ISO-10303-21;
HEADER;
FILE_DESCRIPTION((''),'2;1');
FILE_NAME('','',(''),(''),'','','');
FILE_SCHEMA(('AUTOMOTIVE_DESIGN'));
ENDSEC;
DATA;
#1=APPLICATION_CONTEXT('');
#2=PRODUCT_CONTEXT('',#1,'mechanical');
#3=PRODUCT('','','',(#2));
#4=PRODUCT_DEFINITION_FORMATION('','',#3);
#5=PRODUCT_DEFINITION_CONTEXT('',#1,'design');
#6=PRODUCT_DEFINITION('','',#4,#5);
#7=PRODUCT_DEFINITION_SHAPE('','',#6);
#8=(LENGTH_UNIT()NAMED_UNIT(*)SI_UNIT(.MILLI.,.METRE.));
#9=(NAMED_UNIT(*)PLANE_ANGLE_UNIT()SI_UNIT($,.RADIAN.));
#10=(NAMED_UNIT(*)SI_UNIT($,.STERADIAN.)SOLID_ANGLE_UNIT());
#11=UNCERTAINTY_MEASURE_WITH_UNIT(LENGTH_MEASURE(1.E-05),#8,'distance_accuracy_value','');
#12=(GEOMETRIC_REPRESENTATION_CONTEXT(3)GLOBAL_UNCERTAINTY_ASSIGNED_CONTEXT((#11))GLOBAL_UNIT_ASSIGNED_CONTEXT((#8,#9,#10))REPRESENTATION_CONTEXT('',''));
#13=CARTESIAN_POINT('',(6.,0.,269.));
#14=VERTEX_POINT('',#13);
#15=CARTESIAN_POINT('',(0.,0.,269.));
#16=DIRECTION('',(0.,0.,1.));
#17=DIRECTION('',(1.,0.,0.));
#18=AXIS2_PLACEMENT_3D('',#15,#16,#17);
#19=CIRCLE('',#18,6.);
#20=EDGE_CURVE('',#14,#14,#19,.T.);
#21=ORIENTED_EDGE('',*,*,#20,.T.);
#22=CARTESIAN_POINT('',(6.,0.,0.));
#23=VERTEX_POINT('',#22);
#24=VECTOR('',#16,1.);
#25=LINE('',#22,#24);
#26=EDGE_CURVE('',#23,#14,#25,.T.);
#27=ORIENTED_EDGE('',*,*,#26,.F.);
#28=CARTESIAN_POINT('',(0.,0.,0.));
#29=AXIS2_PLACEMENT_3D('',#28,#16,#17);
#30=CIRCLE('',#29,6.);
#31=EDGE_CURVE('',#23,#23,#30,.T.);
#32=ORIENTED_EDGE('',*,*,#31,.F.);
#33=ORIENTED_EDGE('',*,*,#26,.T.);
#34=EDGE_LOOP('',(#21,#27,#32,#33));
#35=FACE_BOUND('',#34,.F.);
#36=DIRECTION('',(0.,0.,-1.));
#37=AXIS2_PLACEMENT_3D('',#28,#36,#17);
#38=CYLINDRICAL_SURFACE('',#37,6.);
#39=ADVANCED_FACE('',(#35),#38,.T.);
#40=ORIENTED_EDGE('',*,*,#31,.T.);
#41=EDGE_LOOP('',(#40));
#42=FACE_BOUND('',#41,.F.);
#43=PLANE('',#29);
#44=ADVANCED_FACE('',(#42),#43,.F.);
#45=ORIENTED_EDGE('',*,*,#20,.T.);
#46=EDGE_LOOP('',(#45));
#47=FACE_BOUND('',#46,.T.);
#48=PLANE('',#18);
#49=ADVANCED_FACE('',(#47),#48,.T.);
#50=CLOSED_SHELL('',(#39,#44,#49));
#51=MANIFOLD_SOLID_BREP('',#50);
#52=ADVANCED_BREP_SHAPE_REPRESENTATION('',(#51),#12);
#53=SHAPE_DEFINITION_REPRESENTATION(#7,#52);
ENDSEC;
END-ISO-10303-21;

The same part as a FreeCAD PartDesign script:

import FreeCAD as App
import Part
import Sketcher

V = App.Vector
Q = App.Units.Quantity

doc = App.newDocument("Part")
body = doc.addObject("PartDesign::Body", "Body")

sketch1 = body.newObject("Sketcher::SketchObject", "Sketch")
sketch1.AttachmentSupport = (doc.getObject("XY_Plane"), [""])
sketch1.MapMode = "FlatFace"
sketch1.addGeometry(Part.Circle(V(0, 0, 0), V(0, 0, 1), 6), False)
sketch1.addConstraint(Sketcher.Constraint("Coincident", 0, 3, -1, 1))
sketch1.addConstraint(Sketcher.Constraint("Diameter", 0, Q("12 mm")))
pad1 = body.newObject("PartDesign::Pad", "Pad")
pad1.Profile = sketch1
pad1.Length = 269

doc.recompute()
